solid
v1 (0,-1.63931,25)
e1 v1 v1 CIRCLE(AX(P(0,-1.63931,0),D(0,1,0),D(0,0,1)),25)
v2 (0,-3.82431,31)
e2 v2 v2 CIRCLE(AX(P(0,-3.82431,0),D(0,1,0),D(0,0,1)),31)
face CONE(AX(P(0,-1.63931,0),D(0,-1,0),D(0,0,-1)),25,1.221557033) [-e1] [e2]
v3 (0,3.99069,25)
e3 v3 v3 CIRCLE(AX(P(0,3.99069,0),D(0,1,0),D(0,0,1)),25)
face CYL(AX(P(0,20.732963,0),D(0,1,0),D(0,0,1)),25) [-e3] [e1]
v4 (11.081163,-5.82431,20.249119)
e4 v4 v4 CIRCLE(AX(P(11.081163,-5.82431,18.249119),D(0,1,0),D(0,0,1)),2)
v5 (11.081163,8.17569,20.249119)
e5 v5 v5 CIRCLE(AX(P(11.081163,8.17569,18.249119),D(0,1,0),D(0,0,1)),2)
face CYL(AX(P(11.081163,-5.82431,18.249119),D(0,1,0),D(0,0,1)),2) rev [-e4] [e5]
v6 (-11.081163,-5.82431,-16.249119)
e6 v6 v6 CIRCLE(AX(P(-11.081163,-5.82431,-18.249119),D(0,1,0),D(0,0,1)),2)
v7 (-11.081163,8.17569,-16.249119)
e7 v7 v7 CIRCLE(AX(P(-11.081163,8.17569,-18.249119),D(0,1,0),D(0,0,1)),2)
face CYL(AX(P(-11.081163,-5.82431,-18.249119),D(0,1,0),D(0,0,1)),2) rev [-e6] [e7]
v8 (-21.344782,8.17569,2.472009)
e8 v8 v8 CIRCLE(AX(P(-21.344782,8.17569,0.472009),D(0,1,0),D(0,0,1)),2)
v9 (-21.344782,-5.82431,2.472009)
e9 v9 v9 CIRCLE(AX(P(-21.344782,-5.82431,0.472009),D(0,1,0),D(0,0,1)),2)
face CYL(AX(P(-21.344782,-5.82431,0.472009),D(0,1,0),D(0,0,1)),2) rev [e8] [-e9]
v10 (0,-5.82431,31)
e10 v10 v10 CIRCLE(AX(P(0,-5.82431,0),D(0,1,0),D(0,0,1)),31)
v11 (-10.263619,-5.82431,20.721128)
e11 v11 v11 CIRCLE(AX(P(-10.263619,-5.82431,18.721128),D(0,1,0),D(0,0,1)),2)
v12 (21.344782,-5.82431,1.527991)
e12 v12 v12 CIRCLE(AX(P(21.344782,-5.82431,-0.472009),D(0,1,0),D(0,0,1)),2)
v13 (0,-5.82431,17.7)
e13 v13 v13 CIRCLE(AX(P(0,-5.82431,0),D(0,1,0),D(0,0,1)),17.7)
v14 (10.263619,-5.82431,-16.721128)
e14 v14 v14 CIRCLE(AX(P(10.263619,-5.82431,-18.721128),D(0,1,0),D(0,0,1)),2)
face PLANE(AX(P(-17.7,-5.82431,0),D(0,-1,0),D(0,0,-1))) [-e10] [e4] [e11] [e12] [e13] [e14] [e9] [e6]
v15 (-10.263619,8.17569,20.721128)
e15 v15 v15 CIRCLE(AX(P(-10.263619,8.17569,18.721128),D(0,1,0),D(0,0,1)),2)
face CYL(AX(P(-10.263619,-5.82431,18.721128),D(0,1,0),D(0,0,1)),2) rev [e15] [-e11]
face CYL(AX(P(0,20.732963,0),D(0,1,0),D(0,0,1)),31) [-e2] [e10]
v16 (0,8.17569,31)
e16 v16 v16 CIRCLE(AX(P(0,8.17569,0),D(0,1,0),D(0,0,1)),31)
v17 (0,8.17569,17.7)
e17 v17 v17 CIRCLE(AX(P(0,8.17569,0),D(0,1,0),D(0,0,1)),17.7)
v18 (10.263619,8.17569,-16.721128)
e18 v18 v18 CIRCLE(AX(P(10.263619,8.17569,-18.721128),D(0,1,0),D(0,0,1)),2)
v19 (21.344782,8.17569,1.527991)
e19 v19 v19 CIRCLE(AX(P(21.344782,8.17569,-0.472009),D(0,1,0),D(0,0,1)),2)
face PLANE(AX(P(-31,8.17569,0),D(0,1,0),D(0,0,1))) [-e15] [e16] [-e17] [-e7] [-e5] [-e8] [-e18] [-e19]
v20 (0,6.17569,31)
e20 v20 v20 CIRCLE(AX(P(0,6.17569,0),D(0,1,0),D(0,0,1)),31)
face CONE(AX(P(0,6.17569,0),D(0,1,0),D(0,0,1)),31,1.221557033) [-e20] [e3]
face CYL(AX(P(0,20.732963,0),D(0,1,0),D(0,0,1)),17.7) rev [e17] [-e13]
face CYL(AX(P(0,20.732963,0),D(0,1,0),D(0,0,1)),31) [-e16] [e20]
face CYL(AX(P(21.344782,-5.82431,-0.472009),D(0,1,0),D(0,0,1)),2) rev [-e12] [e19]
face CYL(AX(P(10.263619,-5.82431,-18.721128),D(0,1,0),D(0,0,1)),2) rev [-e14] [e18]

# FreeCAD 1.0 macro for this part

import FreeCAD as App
import Part
import Sketcher

V = App.Vector
Q = App.Units.Quantity


def add_polygon(sketch, points):
    """Adds a closed chain of lines whose ends are joined by coincident constraints."""
    first, n = sketch.GeometryCount, len(points)
    for a, b in zip(points, points[1:] + points[:1]):
        sketch.addGeometry(Part.LineSegment(App.Vector(*a, 0), App.Vector(*b, 0)), False)
    for i in range(n):
        sketch.addConstraint(Sketcher.Constraint("Coincident", first + i, 2, first + (i + 1) % n, 1))

doc = App.newDocument("Part")
body = doc.addObject("PartDesign::Body", "Body")

# Sketch on XY plane
sketch1 = body.newObject("Sketcher::SketchObject", "Sketch")
sketch1.AttachmentSupport = (doc.getObject("XY_Plane"), [""])
sketch1.MapMode = "FlatFace"
add_polygon(sketch1, [(-17.7, -5.8), (-17.7, 8.2), (-31, 8.2), (-31, 6.2), (-25, 4), (-25, -1.6), (-31, -3.8), (-31, -5.8)])  # lines 0-7
sketch1.addConstraint(Sketcher.Constraint("Vertical", 0))
sketch1.addConstraint(Sketcher.Constraint("Horizontal", 1))
sketch1.addConstraint(Sketcher.Constraint("Vertical", 2))
sketch1.addConstraint(Sketcher.Constraint("Vertical", 4))
sketch1.addConstraint(Sketcher.Constraint("Vertical", 6))
sketch1.addConstraint(Sketcher.Constraint("Horizontal", 7))
sketch1.addConstraint(Sketcher.Constraint("Vertical", 2, 2, 5, 2))
sketch1.addConstraint(Sketcher.Constraint("Equal", 2, 6))
sketch1.addConstraint(Sketcher.Constraint("Equal", 3, 5))
sketch1.addConstraint(Sketcher.Constraint("DistanceY", 0, 1, 0, 2, Q("14 mm")))
sketch1.addConstraint(Sketcher.Constraint("DistanceY", 2, 2, 2, 1, Q("2 mm")))
sketch1.addConstraint(Sketcher.Constraint("DistanceX", 1, 2, 1, 1, Q("13.3 mm")))
sketch1.addConstraint(Sketcher.Constraint("DistanceX", 1, 2, -1, 1, Q("31 mm")))
sketch1.addConstraint(Sketcher.Constraint("DistanceX", 3, 2, -1, 1, Q("25 mm")))
sketch1.addConstraint(Sketcher.Constraint("DistanceY", 4, 2, 4, 1, Q("5.63 mm")))
sketch1.addConstraint(Sketcher.Constraint("DistanceY", -1, 1, 0, 2, Q("8.17569 mm")))
revolution = body.newObject("PartDesign::Revolution", "Revolution")
revolution.Profile = sketch1
revolution.ReferenceAxis = (sketch1, ["V_Axis"])
revolution.Angle = 360

# Sketch on XZ plane
sketch2 = body.newObject("Sketcher::SketchObject", "Sketch001")
sketch2.AttachmentSupport = (doc.getObject("XZ_Plane"), [""])
sketch2.MapMode = "FlatFace"
sketch2.AttachmentOffset = App.Placement(V(0, 0, -8.17569), App.Rotation())
sketch2.addGeometry(Part.Circle(V(11.1, 18.2, 0), V(0, 0, 1), 2), False)
sketch2.addGeometry(Part.Circle(V(-10.3, 18.7, 0), V(0, 0, 1), 2), False)
sketch2.addGeometry(Part.Circle(V(-21.3, 0.5, 0), V(0, 0, 1), 2), False)
sketch2.addGeometry(Part.Circle(V(-11.1, -18.2, 0), V(0, 0, 1), 2), False)
sketch2.addGeometry(Part.Circle(V(10.3, -18.7, 0), V(0, 0, 1), 2), False)
sketch2.addGeometry(Part.Circle(V(21.3, -0.5, 0), V(0, 0, 1), 2), False)
sketch2.addConstraint(Sketcher.Constraint("Equal", 0, 1))
sketch2.addConstraint(Sketcher.Constraint("Equal", 1, 2))
sketch2.addConstraint(Sketcher.Constraint("Equal", 2, 3))
sketch2.addConstraint(Sketcher.Constraint("Equal", 3, 4))
sketch2.addConstraint(Sketcher.Constraint("Equal", 4, 5))
sketch2.addConstraint(Sketcher.Constraint("Symmetric", 0, 3, 3, 3, -1, 1))
sketch2.addConstraint(Sketcher.Constraint("Symmetric", 1, 3, 4, 3, -1, 1))
sketch2.addConstraint(Sketcher.Constraint("Symmetric", 2, 3, 5, 3, -1, 1))
sketch2.addConstraint(Sketcher.Constraint("Diameter", 0, Q("4 mm")))
sketch2.addConstraint(Sketcher.Constraint("DistanceX", 2, 3, 4, 3, Q("31.608401 mm")))
sketch2.addConstraint(Sketcher.Constraint("DistanceY", -1, 1, 0, 3, Q("18.249119 mm")))
sketch2.addConstraint(Sketcher.Constraint("DistanceX", 1, 3, -1, 1, Q("10.263619 mm")))
sketch2.addConstraint(Sketcher.Constraint("DistanceY", -1, 1, 2, 3, Q("0.472009 mm")))
sketch2.addConstraint(Sketcher.Constraint("DistanceX", 1, 3, 0, 3, Q("21.344782 mm")))
sketch2.addConstraint(Sketcher.Constraint("DistanceY", 0, 3, 1, 3, Q("0.472009 mm")))
pocket1 = body.newObject("PartDesign::Pocket", "Pocket")
pocket1.Profile = sketch2
pocket1.Length = 14
pocket1.Reversed = True

doc.recompute()
